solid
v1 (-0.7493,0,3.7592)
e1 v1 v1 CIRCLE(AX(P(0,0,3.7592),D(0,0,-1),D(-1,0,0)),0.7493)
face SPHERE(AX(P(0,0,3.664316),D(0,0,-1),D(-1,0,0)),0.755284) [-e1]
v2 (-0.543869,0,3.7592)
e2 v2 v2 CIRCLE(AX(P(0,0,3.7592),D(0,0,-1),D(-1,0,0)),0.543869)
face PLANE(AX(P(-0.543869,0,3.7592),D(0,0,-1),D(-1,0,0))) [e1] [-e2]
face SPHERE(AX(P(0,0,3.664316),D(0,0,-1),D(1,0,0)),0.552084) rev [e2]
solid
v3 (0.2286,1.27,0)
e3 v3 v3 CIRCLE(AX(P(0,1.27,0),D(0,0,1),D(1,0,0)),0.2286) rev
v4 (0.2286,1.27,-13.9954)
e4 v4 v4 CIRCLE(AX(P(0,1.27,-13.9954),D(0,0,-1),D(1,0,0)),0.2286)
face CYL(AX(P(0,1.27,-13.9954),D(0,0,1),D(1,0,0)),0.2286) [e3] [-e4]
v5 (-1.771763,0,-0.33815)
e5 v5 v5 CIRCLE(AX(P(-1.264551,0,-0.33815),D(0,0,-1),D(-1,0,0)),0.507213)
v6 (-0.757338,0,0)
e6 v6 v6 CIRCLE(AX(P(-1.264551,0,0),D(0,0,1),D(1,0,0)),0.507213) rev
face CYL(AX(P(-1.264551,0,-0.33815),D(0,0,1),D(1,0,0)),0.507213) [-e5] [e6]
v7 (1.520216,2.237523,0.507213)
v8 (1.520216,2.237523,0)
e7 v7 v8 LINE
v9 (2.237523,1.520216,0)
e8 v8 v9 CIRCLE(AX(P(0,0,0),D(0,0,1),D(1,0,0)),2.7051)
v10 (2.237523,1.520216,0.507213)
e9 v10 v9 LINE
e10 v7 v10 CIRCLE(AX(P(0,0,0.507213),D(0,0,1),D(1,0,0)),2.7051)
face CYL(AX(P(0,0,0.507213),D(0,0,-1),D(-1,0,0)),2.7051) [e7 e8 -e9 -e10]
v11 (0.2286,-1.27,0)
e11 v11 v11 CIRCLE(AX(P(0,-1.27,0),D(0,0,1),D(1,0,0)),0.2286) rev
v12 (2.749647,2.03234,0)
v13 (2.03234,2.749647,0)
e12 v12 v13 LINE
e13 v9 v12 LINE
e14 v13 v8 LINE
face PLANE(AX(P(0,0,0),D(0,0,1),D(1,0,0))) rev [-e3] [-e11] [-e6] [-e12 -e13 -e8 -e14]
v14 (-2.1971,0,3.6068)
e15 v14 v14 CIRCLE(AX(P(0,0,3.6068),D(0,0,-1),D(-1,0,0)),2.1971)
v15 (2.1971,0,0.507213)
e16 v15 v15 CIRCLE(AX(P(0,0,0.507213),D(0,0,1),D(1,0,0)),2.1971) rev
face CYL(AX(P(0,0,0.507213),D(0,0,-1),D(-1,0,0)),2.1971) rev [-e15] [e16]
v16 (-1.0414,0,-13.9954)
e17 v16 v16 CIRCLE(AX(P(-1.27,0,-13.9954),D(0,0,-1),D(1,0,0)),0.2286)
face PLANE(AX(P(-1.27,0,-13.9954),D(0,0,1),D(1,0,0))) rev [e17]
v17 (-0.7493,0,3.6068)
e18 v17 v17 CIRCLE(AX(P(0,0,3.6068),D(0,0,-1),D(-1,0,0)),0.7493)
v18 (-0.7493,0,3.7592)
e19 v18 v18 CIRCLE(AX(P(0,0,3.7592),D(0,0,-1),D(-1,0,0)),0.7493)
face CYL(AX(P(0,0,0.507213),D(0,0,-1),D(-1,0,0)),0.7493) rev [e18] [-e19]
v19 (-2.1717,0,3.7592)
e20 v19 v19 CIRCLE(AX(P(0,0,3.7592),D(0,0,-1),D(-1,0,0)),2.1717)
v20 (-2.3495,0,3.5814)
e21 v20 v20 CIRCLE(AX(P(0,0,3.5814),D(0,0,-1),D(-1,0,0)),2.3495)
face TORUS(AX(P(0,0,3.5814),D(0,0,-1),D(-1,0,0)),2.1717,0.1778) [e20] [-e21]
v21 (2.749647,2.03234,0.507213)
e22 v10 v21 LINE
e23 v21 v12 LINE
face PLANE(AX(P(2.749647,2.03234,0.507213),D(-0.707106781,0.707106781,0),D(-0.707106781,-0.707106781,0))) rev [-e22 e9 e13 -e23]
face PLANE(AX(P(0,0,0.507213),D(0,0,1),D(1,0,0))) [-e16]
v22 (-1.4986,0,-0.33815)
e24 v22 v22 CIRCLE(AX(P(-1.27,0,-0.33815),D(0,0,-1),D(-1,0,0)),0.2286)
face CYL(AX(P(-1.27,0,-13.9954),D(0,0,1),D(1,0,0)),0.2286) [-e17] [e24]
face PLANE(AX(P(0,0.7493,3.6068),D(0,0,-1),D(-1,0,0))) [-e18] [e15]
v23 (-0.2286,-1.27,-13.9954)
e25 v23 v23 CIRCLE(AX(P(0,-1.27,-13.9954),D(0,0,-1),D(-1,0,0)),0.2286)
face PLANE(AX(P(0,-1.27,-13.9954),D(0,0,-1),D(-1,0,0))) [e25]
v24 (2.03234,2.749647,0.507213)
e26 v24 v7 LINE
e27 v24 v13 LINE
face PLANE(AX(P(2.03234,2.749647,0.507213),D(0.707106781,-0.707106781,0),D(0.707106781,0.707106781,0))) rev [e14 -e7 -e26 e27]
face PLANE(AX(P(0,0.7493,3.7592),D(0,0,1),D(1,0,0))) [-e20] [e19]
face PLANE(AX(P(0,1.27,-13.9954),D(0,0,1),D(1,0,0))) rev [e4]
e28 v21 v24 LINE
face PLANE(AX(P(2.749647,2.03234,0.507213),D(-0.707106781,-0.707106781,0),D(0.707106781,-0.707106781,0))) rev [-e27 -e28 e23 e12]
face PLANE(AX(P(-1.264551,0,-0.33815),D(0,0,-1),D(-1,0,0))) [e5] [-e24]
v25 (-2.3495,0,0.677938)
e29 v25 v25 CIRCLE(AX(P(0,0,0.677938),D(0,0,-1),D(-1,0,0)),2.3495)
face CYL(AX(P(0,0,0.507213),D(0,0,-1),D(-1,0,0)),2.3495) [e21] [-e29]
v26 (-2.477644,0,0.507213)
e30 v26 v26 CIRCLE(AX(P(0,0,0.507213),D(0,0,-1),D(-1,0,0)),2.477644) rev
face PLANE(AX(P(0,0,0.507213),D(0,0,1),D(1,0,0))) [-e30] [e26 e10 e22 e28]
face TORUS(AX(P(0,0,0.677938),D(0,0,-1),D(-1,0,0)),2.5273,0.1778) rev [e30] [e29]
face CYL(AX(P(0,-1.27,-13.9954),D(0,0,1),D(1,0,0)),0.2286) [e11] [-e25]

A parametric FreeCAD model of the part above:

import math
import FreeCAD as App
import Part
import Sketcher
Q = App.Units.Quantity

doc = App.newDocument("Part")
params = doc.addObject("Spreadsheet::Sheet", "Params")
for row, (alias, value) in enumerate([
    ("pad1_length", "0.507213 mm"),
    ("sketch2_radius", "0.007 in"),
    ("sketch2_width", "0.056 in"),
    ("sketch2_width2", "0.057 in"),
    ("sketch2_height", "0.006 in"),
    ("revolution_angle", "360 deg"),
    ("sketch3_diameter", "0.018 in"),
    ("pad2_length", "0.551 in"),
    ("pad3_length", "0.33815 mm"),
    ("sketch5_height", "0.008 in"),
    ("revolution2_angle", "360 deg"),
], start=1):
    params.set(f"A{row}", alias)
    params.set(f"B{row}", "=" + value)
    params.setAlias(f"B{row}", alias)

body = doc.addObject("PartDesign::Body", "Body")

# Sketch on XY plane
sketch1 = body.newObject("Sketcher::SketchObject", "Sketch")
sketch1.AttachmentSupport = (doc.getObject("XY_Plane"), [""])
sketch1.MapMode = "FlatFace"
sketch1.addGeometry([
    Part.LineSegment(App.Vector(2.7, 2, 0), App.Vector(2, 2.7, 0)),
    Part.LineSegment(App.Vector(2, 2.7, 0), App.Vector(1.5, 2.2, 0)),
    Part.ArcOfCircle(Part.Circle(App.Vector(0, 0, 0), App.Vector(0, 0, 1), 2.7), math.radians(56), math.radians(394)),
    Part.LineSegment(App.Vector(2.2, 1.5, 0), App.Vector(2.7, 2, 0)),
], False)
sketch1.addConstraint([
    Sketcher.Constraint("Coincident", 0, 2, 1, 1),
    Sketcher.Constraint("Coincident", 1, 2, 2, 1),
    Sketcher.Constraint("Coincident", 2, 2, 3, 1),
    Sketcher.Constraint("Coincident", 3, 2, 0, 1),
    Sketcher.Constraint("Coincident", 2, 3, -1, 1),
    Sketcher.Constraint("Perpendicular", 0, 1),
    Sketcher.Constraint("Parallel", 1, 3),
    Sketcher.Constraint("Equal", 1, 3),
    Sketcher.Constraint("Angle", 0, Q("135 deg")),
    Sketcher.Constraint("Radius", 2, Q("0.1065 in")),
    Sketcher.Constraint("DistanceX", -1, 1, 0, 2, 2.03234),
    Sketcher.Constraint("DistanceY", 2, 2, 0, 2, 1.229431),
])
pad1 = body.newObject("PartDesign::Pad", "Pad")
pad1.Profile = sketch1
pad1.setExpression("Length", "Params.pad1_length")

# Sketch on YZ plane
sketch2 = body.newObject("Sketcher::SketchObject", "Sketch001")
sketch2.AttachmentSupport = (doc.getObject("YZ_Plane"), [""])
sketch2.MapMode = "FlatFace"
sketch2.addGeometry([
    Part.LineSegment(App.Vector(2.35, 0.68, 0), App.Vector(2.35, 3.58, 0)),  # 0
    Part.ArcOfCircle(Part.Circle(App.Vector(2.17, 3.58, 0), App.Vector(0, 0, 1), 0.18), math.radians(0), math.radians(90)),  # 1
    Part.LineSegment(App.Vector(2.17, 3.76, 0), App.Vector(0.75, 3.76, 0)),  # 2
    Part.LineSegment(App.Vector(0.75, 3.76, 0), App.Vector(0.75, 3.61, 0)),  # 3
    Part.LineSegment(App.Vector(0.75, 3.61, 0), App.Vector(2.2, 3.61, 0)),  # 4
    Part.LineSegment(App.Vector(2.2, 3.61, 0), App.Vector(2.2, 0.51, 0)),  # 5
    Part.LineSegment(App.Vector(2.2, 0.51, 0), App.Vector(2.48, 0.51, 0)),  # 6
    Part.ArcOfCircle(Part.Circle(App.Vector(2.53, 0.68, 0), App.Vector(0, 0, 1), 0.18), math.radians(180), math.radians(254)),  # 7
], False)
sketch2.addConstraint([
    Sketcher.Constraint("Tangent", 0, 2, 1, 1),
    Sketcher.Constraint("Tangent", 1, 2, 2, 1),
    Sketcher.Constraint("Coincident", 2, 2, 3, 1),
    Sketcher.Constraint("Coincident", 3, 2, 4, 1),
    Sketcher.Constraint("Coincident", 4, 2, 5, 1),
    Sketcher.Constraint("Coincident", 5, 2, 6, 1),
    Sketcher.Constraint("Coincident", 6, 2, 7, 2),
    Sketcher.Constraint("Tangent", 7, 1, 0, 1),
    Sketcher.Constraint("Vertical", 0),
    Sketcher.Constraint("Horizontal", 2),
    Sketcher.Constraint("Vertical", 3),
    Sketcher.Constraint("Horizontal", 4),
    Sketcher.Constraint("Vertical", 5),
    Sketcher.Constraint("Horizontal", 6),
    Sketcher.Constraint("Equal", 1, 7),
    Sketcher.Constraint("Radius", 1, Q("0.007 in")),
    Sketcher.Constraint("DistanceX", 2, 2, 2, 1, Q("0.056 in")),
    Sketcher.Constraint("DistanceX", 4, 1, 4, 2, Q("0.057 in")),
    Sketcher.Constraint("DistanceY", 3, 2, 3, 1, Q("0.006 in")),
    Sketcher.Constraint("DistanceY", -1, 1, 1, 3, Q("0.141 in")),
    Sketcher.Constraint("DistanceX", -1, 1, 1, 3, Q("0.0855 in")),
    Sketcher.Constraint("DistanceX", 6, 1, 6, 2, 0.280544),
    Sketcher.Constraint("DistanceY", 0, 1, 0, 2, 2.903462),
])
sketch2.setExpression("Constraints[15]", "Params.sketch2_radius")
sketch2.setExpression("Constraints[16]", "Params.sketch2_width")
sketch2.setExpression("Constraints[17]", "Params.sketch2_width2")
sketch2.setExpression("Constraints[18]", "Params.sketch2_height")
revolution = body.newObject("PartDesign::Revolution", "Revolution")
revolution.Profile = sketch2
revolution.ReferenceAxis = (sketch2, ["V_Axis"])
revolution.setExpression("Angle", "Params.revolution_angle")

# Sketch on XY plane
sketch3 = body.newObject("Sketcher::SketchObject", "Sketch002")
sketch3.AttachmentSupport = (doc.getObject("XY_Plane"), [""])
sketch3.MapMode = "FlatFace"
sketch3.addGeometry([
    Part.Circle(App.Vector(0, -1.27, 0), App.Vector(0, 0, 1), 0.23),
    Part.Circle(App.Vector(-1.27, 0, 0), App.Vector(0, 0, 1), 0.23),
    Part.Circle(App.Vector(0, 1.27, 0), App.Vector(0, 0, 1), 0.23),
], False)
sketch3.addConstraint([
    Sketcher.Constraint("Equal", 0, 1),
    Sketcher.Constraint("Equal", 1, 2),
    Sketcher.Constraint("Symmetric", 0, 3, 2, 3, -1, 1),
    Sketcher.Constraint("PointOnObject", 0, 3, -2),
    Sketcher.Constraint("PointOnObject", 1, 3, -1),
    Sketcher.Constraint("Diameter", 0, Q("0.018 in")),
    Sketcher.Constraint("DistanceY", 0, 3, 2, 3, Q("0.1 in")),
    Sketcher.Constraint("DistanceX", 1, 3, -1, 1, Q("0.05 in")),
])
sketch3.setExpression("Constraints[5]", "Params.sketch3_diameter")
pad2 = body.newObject("PartDesign::Pad", "Pad001")
pad2.Profile = sketch3
pad2.setExpression("Length", "Params.pad2_length")
pad2.Reversed = True

# Sketch on XY plane
sketch4 = body.newObject("Sketcher::SketchObject", "Sketch003")
sketch4.AttachmentSupport = (doc.getObject("XY_Plane"), [""])
sketch4.MapMode = "FlatFace"
sketch4.addGeometry(Part.Circle(App.Vector(-1.3, 0, 0), App.Vector(0, 0, 1), 0.5), False)
sketch4.addConstraint([
    Sketcher.Constraint("PointOnObject", 0, 3, -1),
    Sketcher.Constraint("Diameter", 0, 1.014425),
    Sketcher.Constraint("DistanceX", 0, 3, -1, 1, 1.264551),
])
pad3 = body.newObject("PartDesign::Pad", "Pad002")
pad3.Profile = sketch4
pad3.setExpression("Length", "Params.pad3_length")
pad3.Reversed = True
body2 = doc.addObject("PartDesign::Body", "Body001")

# Sketch on XZ plane
sketch5 = body2.newObject("Sketcher::SketchObject", "Sketch004")
sketch5.AttachmentSupport = (doc.getObject("XZ_Plane001"), [""])
sketch5.MapMode = "FlatFace"
sketch5.addGeometry([
    Part.LineSegment(App.Vector(0, 4.42, 0), App.Vector(0, 4.22, 0)),
    Part.ArcOfCircle(Part.Circle(App.Vector(0, 3.66, 0), App.Vector(0, 0, 1), 0.55), math.radians(90), math.radians(170)),
    Part.LineSegment(App.Vector(-0.54, 3.76, 0), App.Vector(-0.75, 3.76, 0)),
    Part.ArcOfCircle(Part.Circle(App.Vector(0, 3.66, 0), App.Vector(0, 0, 1), 0.76), math.radians(90), math.radians(173)),
], False)
sketch5.addConstraint([
    Sketcher.Constraint("Coincident", 0, 2, 1, 1),
    Sketcher.Constraint("Coincident", 1, 2, 2, 1),
    Sketcher.Constraint("Coincident", 2, 2, 3, 2),
    Sketcher.Constraint("Coincident", 3, 1, 0, 1),
    Sketcher.Constraint("Vertical", 0),
    Sketcher.Constraint("Horizontal", 2),
    Sketcher.Constraint("Coincident", 3, 3, 1, 3),
    Sketcher.Constraint("PointOnObject", 1, 3, -2),
    Sketcher.Constraint("PointOnObject", 0, 2, -2),
    Sketcher.Constraint("DistanceY", 0, 2, 0, 1, Q("0.008 in")),
    Sketcher.Constraint("DistanceY", -1, 1, 0, 2, Q("0.166 in")),
    Sketcher.Constraint("DistanceY", -1, 1, 1, 2, Q("0.148 in")),
    Sketcher.Constraint("DistanceX", 2, 2, -1, 1, Q("0.0295 in")),
])
sketch5.setExpression("Constraints[9]", "Params.sketch5_height")
revolution2 = body2.newObject("PartDesign::Revolution", "Revolution001")
revolution2.Profile = sketch5
revolution2.ReferenceAxis = (sketch5, ["V_Axis"])
revolution2.setExpression("Angle", "Params.revolution2_angle")

doc.recompute()
